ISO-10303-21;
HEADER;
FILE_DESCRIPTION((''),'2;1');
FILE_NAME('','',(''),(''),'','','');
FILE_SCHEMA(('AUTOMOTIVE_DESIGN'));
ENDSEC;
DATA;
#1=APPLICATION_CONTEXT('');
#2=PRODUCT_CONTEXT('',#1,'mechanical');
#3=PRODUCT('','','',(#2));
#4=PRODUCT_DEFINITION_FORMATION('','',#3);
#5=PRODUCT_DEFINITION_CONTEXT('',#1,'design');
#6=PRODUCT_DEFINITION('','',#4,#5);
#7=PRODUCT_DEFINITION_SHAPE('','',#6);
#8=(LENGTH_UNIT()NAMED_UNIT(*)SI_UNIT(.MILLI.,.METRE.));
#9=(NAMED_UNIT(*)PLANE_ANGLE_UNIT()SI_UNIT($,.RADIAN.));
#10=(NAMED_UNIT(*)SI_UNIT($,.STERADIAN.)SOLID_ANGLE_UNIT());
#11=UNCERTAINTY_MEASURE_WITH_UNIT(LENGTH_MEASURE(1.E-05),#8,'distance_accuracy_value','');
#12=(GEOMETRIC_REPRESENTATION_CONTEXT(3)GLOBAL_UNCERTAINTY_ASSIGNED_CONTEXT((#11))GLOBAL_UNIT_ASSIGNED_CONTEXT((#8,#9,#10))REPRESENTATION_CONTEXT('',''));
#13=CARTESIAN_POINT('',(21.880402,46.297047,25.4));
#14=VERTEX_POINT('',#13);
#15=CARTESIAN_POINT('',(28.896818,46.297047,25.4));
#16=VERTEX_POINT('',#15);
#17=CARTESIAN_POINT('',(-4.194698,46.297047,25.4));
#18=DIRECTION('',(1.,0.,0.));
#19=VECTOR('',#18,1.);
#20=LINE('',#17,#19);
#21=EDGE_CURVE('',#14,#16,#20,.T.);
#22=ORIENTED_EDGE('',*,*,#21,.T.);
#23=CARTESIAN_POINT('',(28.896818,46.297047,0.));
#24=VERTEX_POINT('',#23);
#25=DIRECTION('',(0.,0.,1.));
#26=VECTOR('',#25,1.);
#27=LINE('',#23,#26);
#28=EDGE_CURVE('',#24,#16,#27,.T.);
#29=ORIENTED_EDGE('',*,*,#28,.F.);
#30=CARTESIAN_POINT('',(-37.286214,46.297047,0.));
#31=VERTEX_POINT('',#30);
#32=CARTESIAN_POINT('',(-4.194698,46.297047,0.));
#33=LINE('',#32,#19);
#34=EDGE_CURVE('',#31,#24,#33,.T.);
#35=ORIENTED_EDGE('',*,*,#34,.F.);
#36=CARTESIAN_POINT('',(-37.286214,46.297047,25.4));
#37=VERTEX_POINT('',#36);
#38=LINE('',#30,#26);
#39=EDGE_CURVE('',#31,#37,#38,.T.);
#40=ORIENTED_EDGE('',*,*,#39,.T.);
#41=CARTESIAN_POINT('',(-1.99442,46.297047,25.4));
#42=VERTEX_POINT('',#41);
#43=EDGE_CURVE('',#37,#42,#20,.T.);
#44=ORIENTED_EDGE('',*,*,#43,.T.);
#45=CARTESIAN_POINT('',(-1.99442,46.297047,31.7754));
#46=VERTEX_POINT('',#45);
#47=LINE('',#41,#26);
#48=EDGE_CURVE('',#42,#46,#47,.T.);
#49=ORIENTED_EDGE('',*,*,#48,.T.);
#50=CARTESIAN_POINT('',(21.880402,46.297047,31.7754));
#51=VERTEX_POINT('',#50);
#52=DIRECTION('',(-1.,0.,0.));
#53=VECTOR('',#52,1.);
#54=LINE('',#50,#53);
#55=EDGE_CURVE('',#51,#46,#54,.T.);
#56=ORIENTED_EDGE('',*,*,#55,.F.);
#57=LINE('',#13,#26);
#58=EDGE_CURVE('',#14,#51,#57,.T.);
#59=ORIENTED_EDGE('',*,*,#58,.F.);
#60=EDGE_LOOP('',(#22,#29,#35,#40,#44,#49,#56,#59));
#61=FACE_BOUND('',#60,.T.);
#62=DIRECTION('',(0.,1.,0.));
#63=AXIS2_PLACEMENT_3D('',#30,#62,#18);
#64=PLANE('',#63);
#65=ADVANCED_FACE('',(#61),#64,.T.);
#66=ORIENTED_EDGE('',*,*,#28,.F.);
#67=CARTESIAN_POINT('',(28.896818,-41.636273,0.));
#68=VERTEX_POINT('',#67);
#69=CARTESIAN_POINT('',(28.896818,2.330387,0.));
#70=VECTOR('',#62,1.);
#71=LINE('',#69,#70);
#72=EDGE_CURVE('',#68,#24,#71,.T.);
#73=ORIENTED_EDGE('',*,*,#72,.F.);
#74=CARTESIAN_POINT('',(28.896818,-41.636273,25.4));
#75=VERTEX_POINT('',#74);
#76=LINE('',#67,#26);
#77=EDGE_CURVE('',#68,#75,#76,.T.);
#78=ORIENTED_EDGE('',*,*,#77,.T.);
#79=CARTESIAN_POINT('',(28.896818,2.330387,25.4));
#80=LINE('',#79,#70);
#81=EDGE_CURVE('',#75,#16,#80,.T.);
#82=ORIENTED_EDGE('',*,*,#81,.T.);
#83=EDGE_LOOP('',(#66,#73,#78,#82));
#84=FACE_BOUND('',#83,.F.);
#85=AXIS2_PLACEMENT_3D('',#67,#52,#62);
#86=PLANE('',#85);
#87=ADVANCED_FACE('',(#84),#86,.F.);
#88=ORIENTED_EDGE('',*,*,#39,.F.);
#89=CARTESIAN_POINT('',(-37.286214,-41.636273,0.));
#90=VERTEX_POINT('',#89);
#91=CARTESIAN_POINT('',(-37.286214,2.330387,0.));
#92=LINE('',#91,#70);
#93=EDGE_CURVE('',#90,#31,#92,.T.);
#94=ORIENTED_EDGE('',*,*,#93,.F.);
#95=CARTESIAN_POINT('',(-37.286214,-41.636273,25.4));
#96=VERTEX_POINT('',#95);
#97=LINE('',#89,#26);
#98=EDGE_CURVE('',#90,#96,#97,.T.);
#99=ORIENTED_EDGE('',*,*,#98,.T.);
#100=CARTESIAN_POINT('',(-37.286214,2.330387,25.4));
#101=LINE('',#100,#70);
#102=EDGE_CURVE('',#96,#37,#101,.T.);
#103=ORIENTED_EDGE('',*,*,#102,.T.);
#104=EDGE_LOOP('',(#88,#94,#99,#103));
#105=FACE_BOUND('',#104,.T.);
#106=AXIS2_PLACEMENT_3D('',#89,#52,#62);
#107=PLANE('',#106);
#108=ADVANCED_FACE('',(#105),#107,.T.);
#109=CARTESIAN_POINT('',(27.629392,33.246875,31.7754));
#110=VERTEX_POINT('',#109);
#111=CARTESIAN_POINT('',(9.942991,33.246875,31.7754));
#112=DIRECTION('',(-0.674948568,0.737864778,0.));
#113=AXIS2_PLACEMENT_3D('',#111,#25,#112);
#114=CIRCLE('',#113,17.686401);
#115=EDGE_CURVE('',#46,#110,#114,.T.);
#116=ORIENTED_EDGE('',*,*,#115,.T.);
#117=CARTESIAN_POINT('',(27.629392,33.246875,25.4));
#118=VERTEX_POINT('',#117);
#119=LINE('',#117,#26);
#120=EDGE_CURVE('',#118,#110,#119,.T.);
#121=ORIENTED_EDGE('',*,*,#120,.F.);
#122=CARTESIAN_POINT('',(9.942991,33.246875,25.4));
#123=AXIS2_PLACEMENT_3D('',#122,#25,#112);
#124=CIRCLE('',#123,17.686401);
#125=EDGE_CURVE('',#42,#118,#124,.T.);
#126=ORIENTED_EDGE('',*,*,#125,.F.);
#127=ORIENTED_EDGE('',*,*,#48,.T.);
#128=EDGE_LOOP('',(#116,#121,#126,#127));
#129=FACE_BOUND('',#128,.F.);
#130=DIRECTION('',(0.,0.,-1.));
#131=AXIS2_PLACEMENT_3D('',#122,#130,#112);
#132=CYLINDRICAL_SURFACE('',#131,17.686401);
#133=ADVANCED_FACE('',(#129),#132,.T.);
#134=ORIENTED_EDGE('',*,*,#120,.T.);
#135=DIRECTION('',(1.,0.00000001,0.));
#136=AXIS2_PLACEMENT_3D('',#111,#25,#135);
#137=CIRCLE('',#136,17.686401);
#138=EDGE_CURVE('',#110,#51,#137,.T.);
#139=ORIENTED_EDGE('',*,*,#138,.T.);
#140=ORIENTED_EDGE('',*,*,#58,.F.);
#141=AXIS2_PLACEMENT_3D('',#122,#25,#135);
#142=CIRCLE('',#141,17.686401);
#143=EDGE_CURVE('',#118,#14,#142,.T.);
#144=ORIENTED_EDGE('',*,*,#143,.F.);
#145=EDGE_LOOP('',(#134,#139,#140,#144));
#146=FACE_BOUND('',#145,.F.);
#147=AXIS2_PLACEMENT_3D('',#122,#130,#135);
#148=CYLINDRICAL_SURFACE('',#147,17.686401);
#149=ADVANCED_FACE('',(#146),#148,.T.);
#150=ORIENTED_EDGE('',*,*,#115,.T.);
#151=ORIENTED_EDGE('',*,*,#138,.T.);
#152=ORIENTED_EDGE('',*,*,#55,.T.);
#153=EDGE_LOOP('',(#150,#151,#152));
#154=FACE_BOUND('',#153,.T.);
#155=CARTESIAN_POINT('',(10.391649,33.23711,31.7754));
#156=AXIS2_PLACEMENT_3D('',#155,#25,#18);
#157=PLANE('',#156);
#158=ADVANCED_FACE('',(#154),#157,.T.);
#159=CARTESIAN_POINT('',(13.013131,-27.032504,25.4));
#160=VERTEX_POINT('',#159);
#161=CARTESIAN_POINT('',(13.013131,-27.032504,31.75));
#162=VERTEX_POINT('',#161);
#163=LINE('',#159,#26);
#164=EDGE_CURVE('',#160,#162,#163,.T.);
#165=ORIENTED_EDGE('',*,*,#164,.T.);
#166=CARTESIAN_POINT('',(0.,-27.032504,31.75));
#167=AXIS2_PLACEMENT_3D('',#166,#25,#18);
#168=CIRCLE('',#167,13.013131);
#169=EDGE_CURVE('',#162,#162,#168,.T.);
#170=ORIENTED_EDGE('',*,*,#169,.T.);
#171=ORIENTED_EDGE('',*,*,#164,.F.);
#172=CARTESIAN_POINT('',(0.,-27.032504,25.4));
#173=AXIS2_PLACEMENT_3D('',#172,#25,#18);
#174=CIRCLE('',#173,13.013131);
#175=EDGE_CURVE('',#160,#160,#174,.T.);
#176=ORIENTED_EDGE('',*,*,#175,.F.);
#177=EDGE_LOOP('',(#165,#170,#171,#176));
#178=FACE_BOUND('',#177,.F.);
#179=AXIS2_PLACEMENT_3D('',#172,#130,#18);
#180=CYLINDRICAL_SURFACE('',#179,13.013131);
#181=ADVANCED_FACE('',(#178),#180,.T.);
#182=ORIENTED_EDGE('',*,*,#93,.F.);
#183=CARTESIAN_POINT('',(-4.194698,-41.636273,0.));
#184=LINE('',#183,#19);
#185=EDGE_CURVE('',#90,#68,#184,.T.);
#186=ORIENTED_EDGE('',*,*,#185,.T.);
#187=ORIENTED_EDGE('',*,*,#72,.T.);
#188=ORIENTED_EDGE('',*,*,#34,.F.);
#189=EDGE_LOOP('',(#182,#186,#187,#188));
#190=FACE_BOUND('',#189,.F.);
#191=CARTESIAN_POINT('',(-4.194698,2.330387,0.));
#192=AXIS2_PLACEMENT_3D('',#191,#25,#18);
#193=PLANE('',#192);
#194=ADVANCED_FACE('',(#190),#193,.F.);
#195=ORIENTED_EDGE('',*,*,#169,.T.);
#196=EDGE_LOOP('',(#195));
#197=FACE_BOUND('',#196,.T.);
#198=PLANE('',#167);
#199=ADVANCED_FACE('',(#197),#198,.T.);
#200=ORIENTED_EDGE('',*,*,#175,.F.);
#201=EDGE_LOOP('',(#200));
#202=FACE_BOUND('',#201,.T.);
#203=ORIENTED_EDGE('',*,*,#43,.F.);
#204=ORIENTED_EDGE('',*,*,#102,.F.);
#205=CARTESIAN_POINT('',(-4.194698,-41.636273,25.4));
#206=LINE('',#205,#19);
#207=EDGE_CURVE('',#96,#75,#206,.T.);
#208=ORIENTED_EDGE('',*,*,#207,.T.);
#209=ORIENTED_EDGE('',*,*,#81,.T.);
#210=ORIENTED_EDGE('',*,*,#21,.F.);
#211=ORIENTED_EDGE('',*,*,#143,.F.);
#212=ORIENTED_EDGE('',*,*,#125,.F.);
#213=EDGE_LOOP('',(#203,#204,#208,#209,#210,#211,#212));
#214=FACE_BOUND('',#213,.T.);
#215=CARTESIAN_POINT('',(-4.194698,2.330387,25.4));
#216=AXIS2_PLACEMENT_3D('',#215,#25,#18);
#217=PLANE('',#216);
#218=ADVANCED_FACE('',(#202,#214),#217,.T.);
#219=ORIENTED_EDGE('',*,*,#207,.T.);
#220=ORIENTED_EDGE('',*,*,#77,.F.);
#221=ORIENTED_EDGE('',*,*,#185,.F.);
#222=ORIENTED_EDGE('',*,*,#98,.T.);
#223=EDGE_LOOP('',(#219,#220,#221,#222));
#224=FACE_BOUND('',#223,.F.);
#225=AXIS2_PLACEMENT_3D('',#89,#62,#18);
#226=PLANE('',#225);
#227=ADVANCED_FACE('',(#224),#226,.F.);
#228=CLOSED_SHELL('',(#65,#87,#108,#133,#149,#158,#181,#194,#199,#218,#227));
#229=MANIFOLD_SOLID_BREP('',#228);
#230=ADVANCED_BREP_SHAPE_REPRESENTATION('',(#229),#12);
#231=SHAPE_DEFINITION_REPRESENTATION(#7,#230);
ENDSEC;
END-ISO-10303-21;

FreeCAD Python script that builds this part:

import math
import FreeCAD as App
import Part
import Sketcher
Q = App.Units.Quantity


def add_polygon(sketch, points):
    """Adds a closed chain of lines whose ends are joined by coincident constraints."""
    first, n = sketch.GeometryCount, len(points)
    for a, b in zip(points, points[1:] + points[:1]):
        sketch.addGeometry(Part.LineSegment(App.Vector(*a, 0), App.Vector(*b, 0)), False)
    for i in range(n):
        sketch.addConstraint(Sketcher.Constraint("Coincident", first + i, 2, first + (i + 1) % n, 1))

doc = App.newDocument("Part")
body = doc.addObject("PartDesign::Body", "Body")

sketch1 = body.newObject("Sketcher::SketchObject", "Sketch")
sketch1.AttachmentSupport = (doc.getObject("XY_Plane"), [""])
sketch1.MapMode = "FlatFace"
add_polygon(sketch1, [(-37, 46), (-37, -42), (29, -42), (29, 46)])
sketch1.addConstraint([
    Sketcher.Constraint("Vertical", 0),
    Sketcher.Constraint("Horizontal", 1),
    Sketcher.Constraint("Vertical", 2),
    Sketcher.Constraint("Horizontal", 3),
    Sketcher.Constraint("DistanceY", 0, 2, 0, 1, Q("87.93332 mm")),
    Sketcher.Constraint("DistanceX", 1, 1, 1, 2, Q("66.183033 mm")),
    Sketcher.Constraint("DistanceX", -1, 1, 1, 2, Q("28.896818 mm")),
    Sketcher.Constraint("DistanceY", 0, 2, -1, 1, Q("41.636273 mm")),
])
pad1 = body.newObject("PartDesign::Pad", "Pad")
pad1.Profile = sketch1
pad1.Length = Q("1 in")

sketch2 = body.newObject("Sketcher::SketchObject", "Sketch001")
sketch2.AttachmentSupport = (doc.getObject("XY_Plane"), [""])
sketch2.MapMode = "FlatFace"
sketch2.AttachmentOffset = App.Placement(App.Vector(0, 0, 1 * 25.4), App.Rotation())
sketch2.addGeometry(Part.Circle(App.Vector(0, -27, 0), App.Vector(0, 0, 1), 13), False)
sketch2.addConstraint([
    Sketcher.Constraint("PointOnObject", 0, 3, -2),
    Sketcher.Constraint("Diameter", 0, Q("26.026262 mm")),
    Sketcher.Constraint("DistanceY", 0, 3, -1, 1, Q("27.032504 mm")),
])
pad2 = body.newObject("PartDesign::Pad", "Pad001")
pad2.Profile = sketch2
pad2.Length = Q("0.25 in")

sketch3 = body.newObject("Sketcher::SketchObject", "Sketch002")
sketch3.AttachmentSupport = (doc.getObject("XY_Plane"), [""])
sketch3.MapMode = "FlatFace"
sketch3.AttachmentOffset = App.Placement(App.Vector(0, 0, 1 * 25.4), App.Rotation())
sketch3.addGeometry([
    Part.ArcOfCircle(Part.Circle(App.Vector(10, 33, 0), App.Vector(0, 0, 1), 18), math.radians(132), math.radians(360)),
    Part.ArcOfCircle(Part.Circle(App.Vector(10, 33, 0), App.Vector(0, 0, 1), 18), math.radians(0), math.radians(48)),
    Part.LineSegment(App.Vector(22, 46, 0), App.Vector(-2, 46, 0)),
], False)
sketch3.addConstraint([
    Sketcher.Constraint("Tangent", 0, 2, 1, 1),
    Sketcher.Constraint("Coincident", 1, 2, 2, 1),
    Sketcher.Constraint("Coincident", 2, 2, 0, 1),
    Sketcher.Constraint("Horizontal", 2),
    Sketcher.Constraint("Equal", 0, 1),
    Sketcher.Constraint("Horizontal", 1, 3, 0, 2),
    Sketcher.Constraint("Radius", 0, Q("17.686401 mm")),
    Sketcher.Constraint("DistanceX", 2, 2, 2, 1, Q("23.874822 mm")),
    Sketcher.Constraint("DistanceX", -1, 1, 0, 3, Q("9.942991 mm")),
    Sketcher.Constraint("DistanceY", -1, 1, 0, 3, Q("33.246875 mm")),
])
pad3 = body.newObject("PartDesign::Pad", "Pad002")
pad3.Profile = sketch3
pad3.Length = Q("0.251 in")

doc.recompute()
